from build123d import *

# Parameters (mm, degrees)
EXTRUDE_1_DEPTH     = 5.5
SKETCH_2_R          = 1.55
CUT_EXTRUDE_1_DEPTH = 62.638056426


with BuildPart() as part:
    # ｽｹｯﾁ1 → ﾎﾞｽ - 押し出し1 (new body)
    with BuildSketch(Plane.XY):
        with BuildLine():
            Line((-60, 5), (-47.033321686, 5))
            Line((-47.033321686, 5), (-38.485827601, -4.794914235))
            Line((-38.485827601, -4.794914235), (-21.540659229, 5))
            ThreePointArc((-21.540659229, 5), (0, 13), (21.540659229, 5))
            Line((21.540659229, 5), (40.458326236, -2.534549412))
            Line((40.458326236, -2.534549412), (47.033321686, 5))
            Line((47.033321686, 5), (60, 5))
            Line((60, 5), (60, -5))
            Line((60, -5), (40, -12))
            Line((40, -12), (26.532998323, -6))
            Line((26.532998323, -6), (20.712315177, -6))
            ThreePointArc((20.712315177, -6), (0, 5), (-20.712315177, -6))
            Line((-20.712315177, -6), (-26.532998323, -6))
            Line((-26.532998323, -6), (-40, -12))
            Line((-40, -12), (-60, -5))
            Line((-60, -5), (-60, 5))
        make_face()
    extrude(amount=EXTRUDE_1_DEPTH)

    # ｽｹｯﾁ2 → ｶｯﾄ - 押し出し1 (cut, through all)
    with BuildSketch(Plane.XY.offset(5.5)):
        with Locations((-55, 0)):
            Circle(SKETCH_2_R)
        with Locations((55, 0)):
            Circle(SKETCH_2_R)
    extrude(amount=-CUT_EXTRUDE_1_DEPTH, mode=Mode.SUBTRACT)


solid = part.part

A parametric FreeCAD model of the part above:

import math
import FreeCAD as App
import Part
import Sketcher

V = App.Vector
Q = App.Units.Quantity

doc = App.newDocument("Part")
body = doc.addObject("PartDesign::Body", "Body")

sketch1 = body.newObject("Sketcher::SketchObject", "Sketch")
sketch1.AttachmentSupport = (doc.getObject("XY_Plane"), [""])
sketch1.MapMode = "FlatFace"
sketch1.addGeometry([
    Part.LineSegment(V(-47, 5, 0), V(-60, 5, 0)),
    Part.LineSegment(V(-60, 5, 0), V(-60, -5, 0)),
    Part.LineSegment(V(-60, -5, 0), V(-40, -12, 0)),
    Part.LineSegment(V(-40, -12, 0), V(-27, -6, 0)),
    Part.LineSegment(V(-27, -6, 0), V(-21, -6, 0)),
    Part.ArcOfCircle(Part.Circle(V(0, -20, 0), V(0, 0, 1), 25), math.radians(34), math.radians(146)),
    Part.LineSegment(V(21, -6, 0), V(27, -6, 0)),
    Part.LineSegment(V(27, -6, 0), V(40, -12, 0)),
    Part.LineSegment(V(40, -12, 0), V(60, -5, 0)),
    Part.LineSegment(V(60, -5, 0), V(60, 5, 0)),
    Part.LineSegment(V(60, 5, 0), V(47, 5, 0)),
    Part.LineSegment(V(47, 5, 0), V(40, -3, 0)),
    Part.LineSegment(V(40, -3, 0), V(22, 5, 0)),
    Part.ArcOfCircle(Part.Circle(V(0, -20, 0), V(0, 0, 1), 33), math.radians(49), math.radians(131)),
    Part.LineSegment(V(-22, 5, 0), V(-38, -5, 0)),
    Part.LineSegment(V(-38, -5, 0), V(-47, 5, 0)),
], False)
sketch1.addConstraint([
    Sketcher.Constraint("Coincident", 0, 2, 1, 1),
    Sketcher.Constraint("Coincident", 1, 2, 2, 1),
    Sketcher.Constraint("Coincident", 2, 2, 3, 1),
    Sketcher.Constraint("Coincident", 3, 2, 4, 1),
    Sketcher.Constraint("Coincident", 4, 2, 5, 2),
    Sketcher.Constraint("Coincident", 5, 1, 6, 1),
    Sketcher.Constraint("Coincident", 6, 2, 7, 1),
    Sketcher.Constraint("Coincident", 7, 2, 8, 1),
    Sketcher.Constraint("Coincident", 8, 2, 9, 1),
    Sketcher.Constraint("Coincident", 9, 2, 10, 1),
    Sketcher.Constraint("Coincident", 10, 2, 11, 1),
    Sketcher.Constraint("Coincident", 11, 2, 12, 1),
    Sketcher.Constraint("Coincident", 12, 2, 13, 1),
    Sketcher.Constraint("Coincident", 13, 2, 14, 1),
    Sketcher.Constraint("Coincident", 14, 2, 15, 1),
    Sketcher.Constraint("Coincident", 15, 2, 0, 1),
    Sketcher.Constraint("Horizontal", 0),
    Sketcher.Constraint("Vertical", 1),
    Sketcher.Constraint("Horizontal", 4),
    Sketcher.Constraint("Horizontal", 6),
    Sketcher.Constraint("Vertical", 9),
    Sketcher.Constraint("Horizontal", 10),
    Sketcher.Constraint("Coincident", 13, 3, 5, 3),
    Sketcher.Constraint("Symmetric", 0, 2, 8, 2, -1, 1),
    Sketcher.Constraint("Symmetric", 4, 2, 5, 1, -2),
    Sketcher.Constraint("Symmetric", 2, 2, 7, 2, -2),
    Sketcher.Constraint("Symmetric", 10, 2, 15, 2, -2),
    Sketcher.Constraint("Horizontal", 1, 2, 8, 2),
    Sketcher.Constraint("Horizontal", 10, 2, 12, 2),
    Sketcher.Constraint("Horizontal", 12, 2, 13, 2),
    Sketcher.Constraint("Equal", 4, 6),
    Sketcher.Constraint("Radius", 5, Q("25 mm")),
    Sketcher.Constraint("Radius", 13, Q("33 mm")),
    Sketcher.Constraint("DistanceY", 1, 2, 1, 1, Q("10 mm")),
    Sketcher.Constraint("Distance", 11, Q("10 mm")),
    Sketcher.Constraint("Distance", 15, Q("13 mm")),
    Sketcher.Constraint("DistanceY", 5, 3, -1, 1, Q("20 mm")),
    Sketcher.Constraint("DistanceX", 0, 2, -1, 1, Q("60 mm")),
    Sketcher.Constraint("DistanceX", 2, 2, -1, 1, Q("40 mm")),
    Sketcher.Constraint("DistanceY", 2, 2, -1, 1, Q("12 mm")),
    Sketcher.Constraint("DistanceY", 3, 2, -1, 1, Q("6 mm")),
    Sketcher.Constraint("DistanceX", 3, 2, -1, 1, Q("26.532998 mm")),
    Sketcher.Constraint("DistanceX", 0, 2, 0, 1, Q("12.966678 mm")),
    Sketcher.Constraint("DistanceY", 11, 2, -1, 1, Q("2.534549 mm")),
    Sketcher.Constraint("DistanceX", 14, 2, 3, 2, Q("11.952829 mm")),
])
pad1 = body.newObject("PartDesign::Pad", "Pad")
pad1.Profile = sketch1
pad1.Length = 5.5

sketch2 = body.newObject("Sketcher::SketchObject", "Sketch001")
sketch2.AttachmentSupport = (doc.getObject("XY_Plane"), [""])
sketch2.MapMode = "FlatFace"
sketch2.AttachmentOffset = App.Placement(V(0, 0, 5.5), App.Rotation())
sketch2.addGeometry([
    Part.Circle(V(-55, 0, 0), V(0, 0, 1), 1.6),
    Part.Circle(V(55, 0, 0), V(0, 0, 1), 1.6),
], False)
sketch2.addConstraint([
    Sketcher.Constraint("Equal", 0, 1),
    Sketcher.Constraint("Symmetric", 0, 3, 1, 3, -1, 1),
    Sketcher.Constraint("PointOnObject", 0, 3, -1),
    Sketcher.Constraint("Diameter", 0, Q("3.1 mm")),
    Sketcher.Constraint("DistanceX", 0, 3, -1, 1, Q("55 mm")),
])
pocket1 = body.newObject("PartDesign::Pocket", "Pocket")
pocket1.Profile = sketch2
pocket1.Type = "ThroughAll"

doc.recompute()
